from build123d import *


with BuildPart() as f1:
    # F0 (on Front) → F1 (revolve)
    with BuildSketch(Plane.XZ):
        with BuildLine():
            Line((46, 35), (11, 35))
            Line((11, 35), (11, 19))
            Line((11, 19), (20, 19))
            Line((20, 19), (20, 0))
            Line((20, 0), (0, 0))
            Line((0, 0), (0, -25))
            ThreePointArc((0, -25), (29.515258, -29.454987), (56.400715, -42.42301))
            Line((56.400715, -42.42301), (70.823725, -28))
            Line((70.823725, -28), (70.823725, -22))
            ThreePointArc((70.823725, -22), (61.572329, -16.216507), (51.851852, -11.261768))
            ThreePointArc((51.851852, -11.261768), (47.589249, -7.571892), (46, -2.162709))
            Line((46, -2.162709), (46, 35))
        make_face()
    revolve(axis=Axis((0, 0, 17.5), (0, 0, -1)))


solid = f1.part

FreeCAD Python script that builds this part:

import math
import FreeCAD as App
import Part
import Sketcher

V = App.Vector
Q = App.Units.Quantity

doc = App.newDocument("Part")
body = doc.addObject("PartDesign::Body", "Body")

# Sketch on XZ plane
sketch1 = body.newObject("Sketcher::SketchObject", "Sketch")
sketch1.AttachmentSupport = (doc.getObject("XZ_Plane"), [""])
sketch1.MapMode = "FlatFace"
sketch1.addGeometry(Part.LineSegment(V(46, 35, 0), V(11, 35, 0)), False)
sketch1.addGeometry(Part.LineSegment(V(11, 35, 0), V(11, 19, 0)), False)
sketch1.addGeometry(Part.LineSegment(V(11, 19, 0), V(20, 19, 0)), False)
sketch1.addGeometry(Part.LineSegment(V(20, 19, 0), V(20, 0, 0)), False)
sketch1.addGeometry(Part.LineSegment(V(20, 0, 0), V(0, 0, 0)), False)
sketch1.addGeometry(Part.LineSegment(V(0, 0, 0), V(0, -25, 0)), False)
sketch1.addGeometry(Part.ArcOfCircle(Part.Circle(V(0, -125, 0), V(0, 0, 1), 100), math.radians(56), math.radians(90)), False)
sketch1.addGeometry(Part.LineSegment(V(56, -42, 0), V(71, -28, 0)), False)
sketch1.addGeometry(Part.LineSegment(V(71, -28, 0), V(71, -22, 0)), False)
sketch1.addGeometry(Part.ArcOfCircle(Part.Circle(V(0, -125, 0), V(0, 0, 1), 125), math.radians(55.49), math.radians(65.49)), False)
sketch1.addGeometry(Part.ArcOfCircle(Part.Circle(V(56, -2, 0), V(0, 0, 1), 10), math.radians(-180), math.radians(-115)), False)
sketch1.addGeometry(Part.LineSegment(V(46, -2, 0), V(46, 35, 0)), False)
sketch1.addConstraint(Sketcher.Constraint("Coincident", 0, 2, 1, 1))
sketch1.addConstraint(Sketcher.Constraint("Coincident", 1, 2, 2, 1))
sketch1.addConstraint(Sketcher.Constraint("Coincident", 2, 2, 3, 1))
sketch1.addConstraint(Sketcher.Constraint("Coincident", 3, 2, 4, 1))
sketch1.addConstraint(Sketcher.Constraint("Coincident", 4, 2, 5, 1))
sketch1.addConstraint(Sketcher.Constraint("Coincident", 5, 2, 6, 2))
sketch1.addConstraint(Sketcher.Constraint("Coincident", 6, 1, 7, 1))
sketch1.addConstraint(Sketcher.Constraint("Coincident", 7, 2, 8, 1))
sketch1.addConstraint(Sketcher.Constraint("Coincident", 8, 2, 9, 1))
sketch1.addConstraint(Sketcher.Constraint("Tangent", 9, 2, 10, 2))
sketch1.addConstraint(Sketcher.Constraint("Tangent", 10, 1, 11, 1))
sketch1.addConstraint(Sketcher.Constraint("Coincident", 11, 2, 0, 1))
sketch1.addConstraint(Sketcher.Constraint("Horizontal", 0))
sketch1.addConstraint(Sketcher.Constraint("Vertical", 1))
sketch1.addConstraint(Sketcher.Constraint("Horizontal", 2))
sketch1.addConstraint(Sketcher.Constraint("Vertical", 3))
sketch1.addConstraint(Sketcher.Constraint("Horizontal", 4))
sketch1.addConstraint(Sketcher.Constraint("Vertical", 5))
sketch1.addConstraint(Sketcher.Constraint("Vertical", 8))
sketch1.addConstraint(Sketcher.Constraint("Vertical", 11))
sketch1.addConstraint(Sketcher.Constraint("Coincident", 4, 2, -1, 1))
sketch1.addConstraint(Sketcher.Constraint("PointOnObject", 6, 3, -2))
sketch1.addConstraint(Sketcher.Constraint("Radius", 6, 100.0))
sketch1.addConstraint(Sketcher.Constraint("DistanceX", 0, 2, 0, 1, 35.0))
sketch1.addConstraint(Sketcher.Constraint("DistanceX", 2, 1, 2, 2, 9.0))
sketch1.addConstraint(Sketcher.Constraint("DistanceX", 4, 2, 4, 1, 20.0))
sketch1.addConstraint(Sketcher.Constraint("DistanceY", 1, 2, 1, 1, 16.0))
sketch1.addConstraint(Sketcher.Constraint("DistanceY", 3, 2, 3, 1, 19.0))
sketch1.addConstraint(Sketcher.Constraint("DistanceY", 5, 2, 5, 1, 25.0))
sketch1.addConstraint(Sketcher.Constraint("DistanceY", 8, 1, 8, 2, 6.0))
sketch1.addConstraint(Sketcher.Constraint("Angle", 7, Q("45 deg")))
sketch1.addConstraint(Sketcher.Constraint("DistanceY", 7, 2, -1, 1, 28.0))
sketch1.addConstraint(Sketcher.Constraint("Radius", 9, 124.999949))
sketch1.addConstraint(Sketcher.Constraint("Radius", 10, 10.000003))
sketch1.addConstraint(Sketcher.Constraint("DistanceY", 11, 1, 11, 2, 37.162709))
sketch1.addConstraint(Sketcher.Constraint("DistanceY", 9, 3, 10, 3, 122.837248))
revolution = body.newObject("PartDesign::Revolution", "Revolution")
revolution.Profile = sketch1
revolution.ReferenceAxis = (sketch1, ["V_Axis"])
revolution.Angle = 360

doc.recompute()
